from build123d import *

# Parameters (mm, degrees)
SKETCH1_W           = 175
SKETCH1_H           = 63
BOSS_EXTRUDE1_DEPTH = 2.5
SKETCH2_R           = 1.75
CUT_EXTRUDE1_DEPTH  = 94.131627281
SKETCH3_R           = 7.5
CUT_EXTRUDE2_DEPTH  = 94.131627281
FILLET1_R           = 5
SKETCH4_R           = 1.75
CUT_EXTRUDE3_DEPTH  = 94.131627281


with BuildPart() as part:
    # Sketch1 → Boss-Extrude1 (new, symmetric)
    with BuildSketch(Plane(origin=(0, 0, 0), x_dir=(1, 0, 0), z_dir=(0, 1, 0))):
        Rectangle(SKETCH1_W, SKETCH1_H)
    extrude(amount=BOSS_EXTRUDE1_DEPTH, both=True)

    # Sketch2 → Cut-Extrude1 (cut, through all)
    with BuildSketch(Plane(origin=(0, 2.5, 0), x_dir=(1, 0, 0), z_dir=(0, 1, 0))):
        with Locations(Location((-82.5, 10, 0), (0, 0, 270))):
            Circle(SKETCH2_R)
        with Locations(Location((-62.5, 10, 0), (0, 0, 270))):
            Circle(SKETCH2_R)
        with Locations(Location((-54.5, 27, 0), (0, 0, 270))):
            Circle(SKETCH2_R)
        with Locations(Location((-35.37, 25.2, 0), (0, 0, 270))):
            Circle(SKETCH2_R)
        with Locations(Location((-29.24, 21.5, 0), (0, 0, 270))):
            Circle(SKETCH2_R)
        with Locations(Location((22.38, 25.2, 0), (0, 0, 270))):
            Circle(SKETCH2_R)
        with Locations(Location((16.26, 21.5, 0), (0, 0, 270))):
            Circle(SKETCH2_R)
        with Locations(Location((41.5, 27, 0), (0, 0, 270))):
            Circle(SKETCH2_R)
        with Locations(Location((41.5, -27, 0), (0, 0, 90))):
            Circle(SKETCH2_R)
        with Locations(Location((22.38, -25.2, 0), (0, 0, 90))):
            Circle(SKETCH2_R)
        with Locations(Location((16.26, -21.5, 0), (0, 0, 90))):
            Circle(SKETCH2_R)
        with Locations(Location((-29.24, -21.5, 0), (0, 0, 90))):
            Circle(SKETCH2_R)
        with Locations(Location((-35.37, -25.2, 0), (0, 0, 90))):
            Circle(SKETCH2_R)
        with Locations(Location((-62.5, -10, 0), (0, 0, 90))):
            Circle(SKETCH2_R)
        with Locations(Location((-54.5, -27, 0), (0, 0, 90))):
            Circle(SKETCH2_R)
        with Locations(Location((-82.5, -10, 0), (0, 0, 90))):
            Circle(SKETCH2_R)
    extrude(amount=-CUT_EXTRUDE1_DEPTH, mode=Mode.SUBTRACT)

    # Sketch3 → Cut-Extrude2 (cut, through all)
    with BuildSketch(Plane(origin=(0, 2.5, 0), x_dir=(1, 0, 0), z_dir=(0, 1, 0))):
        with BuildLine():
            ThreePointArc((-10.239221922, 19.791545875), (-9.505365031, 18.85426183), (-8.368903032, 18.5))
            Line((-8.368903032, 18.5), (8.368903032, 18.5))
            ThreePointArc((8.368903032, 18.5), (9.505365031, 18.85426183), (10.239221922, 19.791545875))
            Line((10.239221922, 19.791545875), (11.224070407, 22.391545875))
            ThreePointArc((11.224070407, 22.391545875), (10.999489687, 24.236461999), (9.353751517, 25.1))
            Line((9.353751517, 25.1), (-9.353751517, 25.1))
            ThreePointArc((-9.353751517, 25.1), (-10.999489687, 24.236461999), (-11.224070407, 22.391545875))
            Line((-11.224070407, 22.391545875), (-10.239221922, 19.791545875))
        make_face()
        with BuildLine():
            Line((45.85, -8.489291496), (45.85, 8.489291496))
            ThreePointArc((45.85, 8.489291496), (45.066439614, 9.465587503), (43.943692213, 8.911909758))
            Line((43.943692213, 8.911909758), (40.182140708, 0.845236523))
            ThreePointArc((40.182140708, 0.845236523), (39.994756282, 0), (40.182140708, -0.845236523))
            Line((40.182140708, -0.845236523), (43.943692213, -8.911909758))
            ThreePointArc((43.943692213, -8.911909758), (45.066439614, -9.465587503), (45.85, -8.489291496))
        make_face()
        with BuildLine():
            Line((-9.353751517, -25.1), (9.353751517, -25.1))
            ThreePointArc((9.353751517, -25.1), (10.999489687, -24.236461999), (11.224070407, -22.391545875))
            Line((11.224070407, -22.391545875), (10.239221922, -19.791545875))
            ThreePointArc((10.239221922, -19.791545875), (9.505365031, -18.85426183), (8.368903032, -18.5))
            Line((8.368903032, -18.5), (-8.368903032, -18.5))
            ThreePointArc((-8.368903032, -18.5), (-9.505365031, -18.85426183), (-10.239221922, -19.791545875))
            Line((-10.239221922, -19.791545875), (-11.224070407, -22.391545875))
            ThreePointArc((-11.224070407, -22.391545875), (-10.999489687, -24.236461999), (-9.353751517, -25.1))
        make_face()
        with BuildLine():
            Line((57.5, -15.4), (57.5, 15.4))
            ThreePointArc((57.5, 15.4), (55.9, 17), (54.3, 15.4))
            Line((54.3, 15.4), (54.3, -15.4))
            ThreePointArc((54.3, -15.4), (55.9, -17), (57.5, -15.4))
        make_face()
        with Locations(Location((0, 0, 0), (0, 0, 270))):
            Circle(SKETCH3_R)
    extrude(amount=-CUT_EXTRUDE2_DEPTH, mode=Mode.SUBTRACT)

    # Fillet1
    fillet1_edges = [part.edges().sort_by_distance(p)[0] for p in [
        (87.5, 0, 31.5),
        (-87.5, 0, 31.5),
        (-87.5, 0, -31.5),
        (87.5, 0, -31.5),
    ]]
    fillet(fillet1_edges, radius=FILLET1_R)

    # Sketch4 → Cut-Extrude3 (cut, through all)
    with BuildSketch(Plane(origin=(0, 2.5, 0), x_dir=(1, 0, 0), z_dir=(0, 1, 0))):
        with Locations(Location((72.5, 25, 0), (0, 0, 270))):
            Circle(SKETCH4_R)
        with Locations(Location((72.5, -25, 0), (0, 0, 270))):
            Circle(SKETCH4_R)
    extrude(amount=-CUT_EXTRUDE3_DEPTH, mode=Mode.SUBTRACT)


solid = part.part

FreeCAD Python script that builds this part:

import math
import FreeCAD as App
import Part
import Sketcher

V = App.Vector
Q = App.Units.Quantity


def edges_at(feature, points):
    """Names of the edges that pass closest to the given points."""
    edges = feature.Shape.Edges
    near = lambda p: min(range(len(edges)), key=lambda i: edges[i].distToShape(Part.Vertex(*p))[0])
    return sorted({f"Edge{near(p) + 1}" for p in points})

doc = App.newDocument("Part")
body = doc.addObject("PartDesign::Body", "Body")

# Sketch on XZ plane
sketch1 = body.newObject("Sketcher::SketchObject", "Sketch")
sketch1.AttachmentSupport = (doc.getObject("XZ_Plane"), [""])
sketch1.MapMode = "FlatFace"
sketch1.addGeometry([
    Part.LineSegment(V(-88, -32, 0), V(-88, 32, 0)),
    Part.LineSegment(V(-88, 32, 0), V(88, 32, 0)),
    Part.LineSegment(V(88, 32, 0), V(88, -32, 0)),
    Part.LineSegment(V(88, -32, 0), V(-88, -32, 0)),
], False)
sketch1.addConstraint([
    Sketcher.Constraint("Coincident", 0, 2, 1, 1),
    Sketcher.Constraint("Coincident", 1, 2, 2, 1),
    Sketcher.Constraint("Coincident", 2, 2, 3, 1),
    Sketcher.Constraint("Coincident", 3, 2, 0, 1),
    Sketcher.Constraint("Vertical", 0),
    Sketcher.Constraint("Horizontal", 1),
    Sketcher.Constraint("Vertical", 2),
    Sketcher.Constraint("Horizontal", 3),
    Sketcher.Constraint("Symmetric", 0, 2, 2, 2, -1, 1),
    Sketcher.Constraint("DistanceX", 1, 1, 1, 2, Q("175 mm")),
    Sketcher.Constraint("DistanceY", 0, 1, 0, 2, Q("63 mm")),
])
pad1 = body.newObject("PartDesign::Pad", "Pad")
pad1.Profile = sketch1
pad1.Length = 5
pad1.Midplane = True

# Sketch on XZ plane
sketch2 = body.newObject("Sketcher::SketchObject", "Sketch001")
sketch2.AttachmentSupport = (doc.getObject("XZ_Plane"), [""])
sketch2.MapMode = "FlatFace"
sketch2.AttachmentOffset = App.Placement(V(0, 0, -2.5), App.Rotation())
sketch2.addGeometry([
    Part.Circle(V(-82.5, -10, 0), V(0, 0, 1), 1.8),  # 0
    Part.Circle(V(-62.5, -10, 0), V(0, 0, 1), 1.8),  # 1
    Part.Circle(V(-54.5, -27, 0), V(0, 0, 1), 1.8),  # 2
    Part.Circle(V(-35.4, -25.2, 0), V(0, 0, 1), 1.8),  # 3
    Part.Circle(V(-29.2, -21.5, 0), V(0, 0, 1), 1.8),  # 4
    Part.Circle(V(22.4, -25.2, 0), V(0, 0, 1), 1.8),  # 5
    Part.Circle(V(16.3, -21.5, 0), V(0, 0, 1), 1.8),  # 6
    Part.Circle(V(41.5, -27, 0), V(0, 0, 1), 1.8),  # 7
    Part.Circle(V(41.5, 27, 0), V(0, 0, 1), 1.8),  # 8
    Part.Circle(V(22.4, 25.2, 0), V(0, 0, 1), 1.8),  # 9
    Part.Circle(V(16.3, 21.5, 0), V(0, 0, 1), 1.8),  # 10
    Part.Circle(V(-29.2, 21.5, 0), V(0, 0, 1), 1.8),  # 11
    Part.Circle(V(-35.4, 25.2, 0), V(0, 0, 1), 1.8),  # 12
    Part.Circle(V(-62.5, 10, 0), V(0, 0, 1), 1.8),  # 13
    Part.Circle(V(-54.5, 27, 0), V(0, 0, 1), 1.8),  # 14
    Part.Circle(V(-82.5, 10, 0), V(0, 0, 1), 1.8),  # 15
], False)
sketch2.addConstraint([
    Sketcher.Constraint("Equal", 0, 1),
    Sketcher.Constraint("Equal", 1, 2),
    Sketcher.Constraint("Equal", 2, 3),
    Sketcher.Constraint("Equal", 3, 4),
    Sketcher.Constraint("Equal", 4, 5),
    Sketcher.Constraint("Equal", 5, 6),
    Sketcher.Constraint("Equal", 6, 7),
    Sketcher.Constraint("Equal", 7, 8),
    Sketcher.Constraint("Equal", 8, 9),
    Sketcher.Constraint("Equal", 9, 10),
    Sketcher.Constraint("Equal", 10, 11),
    Sketcher.Constraint("Equal", 11, 12),
    Sketcher.Constraint("Equal", 12, 13),
    Sketcher.Constraint("Equal", 13, 14),
    Sketcher.Constraint("Equal", 14, 15),
    Sketcher.Constraint("Symmetric", 7, 3, 8, 3, -1),
    Sketcher.Constraint("Symmetric", 5, 3, 9, 3, -1),
    Sketcher.Constraint("Symmetric", 6, 3, 10, 3, -1),
    Sketcher.Constraint("Symmetric", 4, 3, 11, 3, -1),
    Sketcher.Constraint("Symmetric", 3, 3, 12, 3, -1),
    Sketcher.Constraint("Symmetric", 1, 3, 13, 3, -1),
    Sketcher.Constraint("Symmetric", 2, 3, 14, 3, -1),
    Sketcher.Constraint("Symmetric", 0, 3, 15, 3, -1),
    Sketcher.Constraint("Horizontal", 0, 3, 1, 3),
    Sketcher.Constraint("Horizontal", 3, 3, 5, 3),
    Sketcher.Constraint("Horizontal", 4, 3, 6, 3),
    Sketcher.Constraint("Horizontal", 2, 3, 7, 3),
    Sketcher.Constraint("Diameter", 0, Q("3.5 mm")),
    Sketcher.Constraint("DistanceY", 0, 3, -1, 1, Q("10 mm")),
    Sketcher.Constraint("DistanceY", 2, 3, -1, 1, Q("27 mm")),
    Sketcher.Constraint("DistanceX", 0, 3, 1, 3, Q("20 mm")),
    Sketcher.Constraint("DistanceX", 1, 3, 2, 3, Q("8 mm")),
    Sketcher.Constraint("DistanceX", 2, 3, 7, 3, Q("96 mm")),
    Sketcher.Constraint("DistanceY", 6, 3, 10, 3, Q("43 mm")),
    Sketcher.Constraint("DistanceX", 0, 3, -1, 1, Q("82.5 mm")),
    Sketcher.Constraint("DistanceY", 3, 3, -1, 1, Q("25.2 mm")),
    Sketcher.Constraint("DistanceX", 4, 3, 6, 3, Q("45.5 mm")),
    Sketcher.Constraint("DistanceX", 3, 3, -1, 1, Q("35.37 mm")),
    Sketcher.Constraint("DistanceX", 4, 3, -1, 1, Q("29.24 mm")),
    Sketcher.Constraint("DistanceX", -1, 1, 5, 3, Q("22.38 mm")),
])
pocket1 = body.newObject("PartDesign::Pocket", "Pocket")
pocket1.Profile = sketch2
pocket1.Type = "ThroughAll"
pocket1.Reversed = True

# Sketch on XZ plane
sketch3 = body.newObject("Sketcher::SketchObject", "Sketch002")
sketch3.AttachmentSupport = (doc.getObject("XZ_Plane"), [""])
sketch3.MapMode = "FlatFace"
sketch3.AttachmentOffset = App.Placement(V(0, 0, -2.5), App.Rotation())
sketch3.addGeometry([
    Part.ArcOfCircle(Part.Circle(V(-8.4, -20.5, 0), V(0, 0, 1), 2), math.radians(90), math.radians(159)),  # 0
    Part.LineSegment(V(-8.4, -18.5, 0), V(8.4, -18.5, 0)),  # 1
    Part.ArcOfCircle(Part.Circle(V(8.4, -20.5, 0), V(0, 0, 1), 2), math.radians(21), math.radians(90)),  # 2
    Part.LineSegment(V(10.2, -19.8, 0), V(11.2, -22.4, 0)),  # 3
    Part.ArcOfCircle(Part.Circle(V(9.4, -23.1, 0), V(0, 0, 1), 2), math.radians(-90), math.radians(21)),  # 4
    Part.LineSegment(V(9.4, -25.1, 0), V(-9.4, -25.1, 0)),  # 5
    Part.ArcOfCircle(Part.Circle(V(-9.4, -23.1, 0), V(0, 0, 1), 2), math.radians(159), math.radians(270)),  # 6
    Part.LineSegment(V(-11.2, -22.4, 0), V(-10.2, -19.8, 0)),  # 7
    Part.LineSegment(V(45.9, 8.5, 0), V(45.9, -8.5, 0)),  # 8
    Part.ArcOfCircle(Part.Circle(V(44.9, -8.5, 0), V(0, 0, 1), 1), math.radians(-155), math.radians(0)),  # 9
    Part.LineSegment(V(43.9, -8.9, 0), V(40.2, -0.8, 0)),  # 10
    Part.ArcOfCircle(Part.Circle(V(42, 0, 0), V(0, 0, 1), 2), math.radians(155), math.radians(205)),  # 11
    Part.LineSegment(V(40.2, 0.8, 0), V(43.9, 8.9, 0)),  # 12
    Part.ArcOfCircle(Part.Circle(V(44.9, 8.5, 0), V(0, 0, 1), 1), math.radians(0), math.radians(155)),  # 13
    Part.LineSegment(V(-9.4, 25.1, 0), V(9.4, 25.1, 0)),  # 14
    Part.ArcOfCircle(Part.Circle(V(9.4, 23.1, 0), V(0, 0, 1), 2), math.radians(-21), math.radians(90)),  # 15
    Part.LineSegment(V(11.2, 22.4, 0), V(10.2, 19.8, 0)),  # 16
    Part.ArcOfCircle(Part.Circle(V(8.4, 20.5, 0), V(0, 0, 1), 2), math.radians(-90), math.radians(-21)),  # 17
    Part.LineSegment(V(8.4, 18.5, 0), V(-8.4, 18.5, 0)),  # 18
    Part.ArcOfCircle(Part.Circle(V(-8.4, 20.5, 0), V(0, 0, 1), 2), math.radians(-159), math.radians(-90)),  # 19
    Part.LineSegment(V(-10.2, 19.8, 0), V(-11.2, 22.4, 0)),  # 20
    Part.ArcOfCircle(Part.Circle(V(-9.4, 23.1, 0), V(0, 0, 1), 2), math.radians(90), math.radians(201)),  # 21
    Part.LineSegment(V(57.5, 15.4, 0), V(57.5, -15.4, 0)),  # 22
    Part.ArcOfCircle(Part.Circle(V(55.9, -15.4, 0), V(0, 0, 1), 1.6), math.radians(180), math.radians(360)),  # 23
    Part.LineSegment(V(54.3, -15.4, 0), V(54.3, 15.4, 0)),  # 24
    Part.ArcOfCircle(Part.Circle(V(55.9, 15.4, 0), V(0, 0, 1), 1.6), math.radians(0), math.radians(180)),  # 25
    Part.Circle(V(0, 0, 0), V(0, 0, 1), 7.5),  # 26
], False)
sketch3.addConstraint([
    Sketcher.Constraint("Tangent", 0, 1, 1, 1),
    Sketcher.Constraint("Tangent", 1, 2, 2, 2),
    Sketcher.Constraint("Tangent", 2, 1, 3, 1),
    Sketcher.Constraint("Tangent", 3, 2, 4, 2),
    Sketcher.Constraint("Tangent", 4, 1, 5, 1),
    Sketcher.Constraint("Tangent", 5, 2, 6, 2),
    Sketcher.Constraint("Tangent", 6, 1, 7, 1),
    Sketcher.Constraint("Tangent", 7, 2, 0, 2),
    Sketcher.Constraint("Tangent", 8, 2, 9, 2),
    Sketcher.Constraint("Tangent", 9, 1, 10, 1),
    Sketcher.Constraint("Tangent", 10, 2, 11, 2),
    Sketcher.Constraint("Tangent", 11, 1, 12, 1),
    Sketcher.Constraint("Tangent", 12, 2, 13, 2),
    Sketcher.Constraint("Tangent", 13, 1, 8, 1),
    Sketcher.Constraint("Tangent", 14, 2, 15, 2),
    Sketcher.Constraint("Tangent", 15, 1, 16, 1),
    Sketcher.Constraint("Tangent", 16, 2, 17, 2),
    Sketcher.Constraint("Tangent", 17, 1, 18, 1),
    Sketcher.Constraint("Tangent", 18, 2, 19, 2),
    Sketcher.Constraint("Tangent", 19, 1, 20, 1),
    Sketcher.Constraint("Tangent", 20, 2, 21, 2),
    Sketcher.Constraint("Tangent", 21, 1, 14, 1),
    Sketcher.Constraint("Tangent", 22, 2, 23, 2),
    Sketcher.Constraint("Tangent", 23, 1, 24, 1),
    Sketcher.Constraint("Tangent", 24, 2, 25, 2),
    Sketcher.Constraint("Tangent", 25, 1, 22, 1),
    Sketcher.Constraint("Horizontal", 1),
    Sketcher.Constraint("Horizontal", 5),
    Sketcher.Constraint("Vertical", 8),
    Sketcher.Constraint("Horizontal", 14),
    Sketcher.Constraint("Horizontal", 18),
    Sketcher.Constraint("Vertical", 22),
    Sketcher.Constraint("Vertical", 24),
    Sketcher.Constraint("Coincident", 26, 3, -1, 1),
    Sketcher.Constraint("Equal", 0, 2),
    Sketcher.Constraint("Equal", 2, 4),
    Sketcher.Constraint("Equal", 4, 6),
    Sketcher.Constraint("Equal", 6, 11),
    Sketcher.Constraint("Equal", 9, 13),
    Sketcher.Constraint("Equal", 11, 15),
    Sketcher.Constraint("Equal", 15, 17),
    Sketcher.Constraint("Equal", 17, 19),
    Sketcher.Constraint("Equal", 19, 21),
    Sketcher.Constraint("Symmetric", 6, 3, 15, 3, -1, 1),
    Sketcher.Constraint("Symmetric", 0, 3, 17, 3, -1, 1),
    Sketcher.Constraint("Symmetric", 2, 1, 19, 1, -1, 1),
    Sketcher.Constraint("Symmetric", 3, 2, 6, 1, -2),
    Sketcher.Constraint("Symmetric", 10, 2, 11, 1, -1),
    Sketcher.Constraint("Diameter", 26, Q("15 mm")),
    Sketcher.Constraint("Radius", 0, Q("2 mm")),
    Sketcher.Constraint("Radius", 9, Q("1 mm")),
    Sketcher.Constraint("Radius", 23, Q("1.6 mm")),
    Sketcher.Constraint("Angle", 10, Q("115 deg")),
    Sketcher.Constraint("DistanceY", 22, 2, 22, 1, Q("30.8 mm")),
    Sketcher.Constraint("DistanceY", 2, 3, 17, 3, Q("41 mm")),
    Sketcher.Constraint("DistanceY", 4, 3, -1, 1, Q("23.1 mm")),
    Sketcher.Constraint("DistanceX", -1, 1, 23, 3, Q("55.9 mm")),
    Sketcher.Constraint("DistanceY", 23, 3, -1, 1, Q("15.4 mm")),
    Sketcher.Constraint("DistanceX", -1, 1, 9, 3, Q("44.85 mm")),
    Sketcher.Constraint("DistanceY", 9, 1, 13, 3, Q("17.401201 mm")),
    Sketcher.Constraint("DistanceX", 1, 1, 1, 2, Q("16.737806 mm")),
    Sketcher.Constraint("DistanceX", 5, 2, 5, 1, Q("18.707503 mm")),
])
pocket2 = body.newObject("PartDesign::Pocket", "Pocket001")
pocket2.Profile = sketch3
pocket2.Type = "ThroughAll"
pocket2.Reversed = True
doc.recompute()

fillet = body.newObject("PartDesign::Fillet", "Fillet")
fillet.Base = (pocket2, edges_at(pocket2, [
    (87.5, 0, 31.5),
    (-87.5, 0, 31.5),
    (-87.5, 0, -31.5),
    (87.5, 0, -31.5),
]))
fillet.Radius = 5

# Sketch on XZ plane
sketch4 = body.newObject("Sketcher::SketchObject", "Sketch003")
sketch4.AttachmentSupport = (doc.getObject("XZ_Plane"), [""])
sketch4.MapMode = "FlatFace"
sketch4.AttachmentOffset = App.Placement(V(0, 0, -2.5), App.Rotation())
sketch4.addGeometry([
    Part.Circle(V(72.5, -25, 0), V(0, 0, 1), 1.8),
    Part.Circle(V(72.5, 25, 0), V(0, 0, 1), 1.8),
], False)
sketch4.addConstraint([
    Sketcher.Constraint("Equal", 0, 1),
    Sketcher.Constraint("Symmetric", 0, 3, 1, 3, -1),
    Sketcher.Constraint("Diameter", 0, Q("3.5 mm")),
    Sketcher.Constraint("DistanceY", 0, 3, -1, 1, Q("25 mm")),
    Sketcher.Constraint("DistanceX", -1, 1, 0, 3, Q("72.5 mm")),
])
pocket3 = body.newObject("PartDesign::Pocket", "Pocket002")
pocket3.Profile = sketch4
pocket3.Type = "ThroughAll"
pocket3.Reversed = True

doc.recompute()
